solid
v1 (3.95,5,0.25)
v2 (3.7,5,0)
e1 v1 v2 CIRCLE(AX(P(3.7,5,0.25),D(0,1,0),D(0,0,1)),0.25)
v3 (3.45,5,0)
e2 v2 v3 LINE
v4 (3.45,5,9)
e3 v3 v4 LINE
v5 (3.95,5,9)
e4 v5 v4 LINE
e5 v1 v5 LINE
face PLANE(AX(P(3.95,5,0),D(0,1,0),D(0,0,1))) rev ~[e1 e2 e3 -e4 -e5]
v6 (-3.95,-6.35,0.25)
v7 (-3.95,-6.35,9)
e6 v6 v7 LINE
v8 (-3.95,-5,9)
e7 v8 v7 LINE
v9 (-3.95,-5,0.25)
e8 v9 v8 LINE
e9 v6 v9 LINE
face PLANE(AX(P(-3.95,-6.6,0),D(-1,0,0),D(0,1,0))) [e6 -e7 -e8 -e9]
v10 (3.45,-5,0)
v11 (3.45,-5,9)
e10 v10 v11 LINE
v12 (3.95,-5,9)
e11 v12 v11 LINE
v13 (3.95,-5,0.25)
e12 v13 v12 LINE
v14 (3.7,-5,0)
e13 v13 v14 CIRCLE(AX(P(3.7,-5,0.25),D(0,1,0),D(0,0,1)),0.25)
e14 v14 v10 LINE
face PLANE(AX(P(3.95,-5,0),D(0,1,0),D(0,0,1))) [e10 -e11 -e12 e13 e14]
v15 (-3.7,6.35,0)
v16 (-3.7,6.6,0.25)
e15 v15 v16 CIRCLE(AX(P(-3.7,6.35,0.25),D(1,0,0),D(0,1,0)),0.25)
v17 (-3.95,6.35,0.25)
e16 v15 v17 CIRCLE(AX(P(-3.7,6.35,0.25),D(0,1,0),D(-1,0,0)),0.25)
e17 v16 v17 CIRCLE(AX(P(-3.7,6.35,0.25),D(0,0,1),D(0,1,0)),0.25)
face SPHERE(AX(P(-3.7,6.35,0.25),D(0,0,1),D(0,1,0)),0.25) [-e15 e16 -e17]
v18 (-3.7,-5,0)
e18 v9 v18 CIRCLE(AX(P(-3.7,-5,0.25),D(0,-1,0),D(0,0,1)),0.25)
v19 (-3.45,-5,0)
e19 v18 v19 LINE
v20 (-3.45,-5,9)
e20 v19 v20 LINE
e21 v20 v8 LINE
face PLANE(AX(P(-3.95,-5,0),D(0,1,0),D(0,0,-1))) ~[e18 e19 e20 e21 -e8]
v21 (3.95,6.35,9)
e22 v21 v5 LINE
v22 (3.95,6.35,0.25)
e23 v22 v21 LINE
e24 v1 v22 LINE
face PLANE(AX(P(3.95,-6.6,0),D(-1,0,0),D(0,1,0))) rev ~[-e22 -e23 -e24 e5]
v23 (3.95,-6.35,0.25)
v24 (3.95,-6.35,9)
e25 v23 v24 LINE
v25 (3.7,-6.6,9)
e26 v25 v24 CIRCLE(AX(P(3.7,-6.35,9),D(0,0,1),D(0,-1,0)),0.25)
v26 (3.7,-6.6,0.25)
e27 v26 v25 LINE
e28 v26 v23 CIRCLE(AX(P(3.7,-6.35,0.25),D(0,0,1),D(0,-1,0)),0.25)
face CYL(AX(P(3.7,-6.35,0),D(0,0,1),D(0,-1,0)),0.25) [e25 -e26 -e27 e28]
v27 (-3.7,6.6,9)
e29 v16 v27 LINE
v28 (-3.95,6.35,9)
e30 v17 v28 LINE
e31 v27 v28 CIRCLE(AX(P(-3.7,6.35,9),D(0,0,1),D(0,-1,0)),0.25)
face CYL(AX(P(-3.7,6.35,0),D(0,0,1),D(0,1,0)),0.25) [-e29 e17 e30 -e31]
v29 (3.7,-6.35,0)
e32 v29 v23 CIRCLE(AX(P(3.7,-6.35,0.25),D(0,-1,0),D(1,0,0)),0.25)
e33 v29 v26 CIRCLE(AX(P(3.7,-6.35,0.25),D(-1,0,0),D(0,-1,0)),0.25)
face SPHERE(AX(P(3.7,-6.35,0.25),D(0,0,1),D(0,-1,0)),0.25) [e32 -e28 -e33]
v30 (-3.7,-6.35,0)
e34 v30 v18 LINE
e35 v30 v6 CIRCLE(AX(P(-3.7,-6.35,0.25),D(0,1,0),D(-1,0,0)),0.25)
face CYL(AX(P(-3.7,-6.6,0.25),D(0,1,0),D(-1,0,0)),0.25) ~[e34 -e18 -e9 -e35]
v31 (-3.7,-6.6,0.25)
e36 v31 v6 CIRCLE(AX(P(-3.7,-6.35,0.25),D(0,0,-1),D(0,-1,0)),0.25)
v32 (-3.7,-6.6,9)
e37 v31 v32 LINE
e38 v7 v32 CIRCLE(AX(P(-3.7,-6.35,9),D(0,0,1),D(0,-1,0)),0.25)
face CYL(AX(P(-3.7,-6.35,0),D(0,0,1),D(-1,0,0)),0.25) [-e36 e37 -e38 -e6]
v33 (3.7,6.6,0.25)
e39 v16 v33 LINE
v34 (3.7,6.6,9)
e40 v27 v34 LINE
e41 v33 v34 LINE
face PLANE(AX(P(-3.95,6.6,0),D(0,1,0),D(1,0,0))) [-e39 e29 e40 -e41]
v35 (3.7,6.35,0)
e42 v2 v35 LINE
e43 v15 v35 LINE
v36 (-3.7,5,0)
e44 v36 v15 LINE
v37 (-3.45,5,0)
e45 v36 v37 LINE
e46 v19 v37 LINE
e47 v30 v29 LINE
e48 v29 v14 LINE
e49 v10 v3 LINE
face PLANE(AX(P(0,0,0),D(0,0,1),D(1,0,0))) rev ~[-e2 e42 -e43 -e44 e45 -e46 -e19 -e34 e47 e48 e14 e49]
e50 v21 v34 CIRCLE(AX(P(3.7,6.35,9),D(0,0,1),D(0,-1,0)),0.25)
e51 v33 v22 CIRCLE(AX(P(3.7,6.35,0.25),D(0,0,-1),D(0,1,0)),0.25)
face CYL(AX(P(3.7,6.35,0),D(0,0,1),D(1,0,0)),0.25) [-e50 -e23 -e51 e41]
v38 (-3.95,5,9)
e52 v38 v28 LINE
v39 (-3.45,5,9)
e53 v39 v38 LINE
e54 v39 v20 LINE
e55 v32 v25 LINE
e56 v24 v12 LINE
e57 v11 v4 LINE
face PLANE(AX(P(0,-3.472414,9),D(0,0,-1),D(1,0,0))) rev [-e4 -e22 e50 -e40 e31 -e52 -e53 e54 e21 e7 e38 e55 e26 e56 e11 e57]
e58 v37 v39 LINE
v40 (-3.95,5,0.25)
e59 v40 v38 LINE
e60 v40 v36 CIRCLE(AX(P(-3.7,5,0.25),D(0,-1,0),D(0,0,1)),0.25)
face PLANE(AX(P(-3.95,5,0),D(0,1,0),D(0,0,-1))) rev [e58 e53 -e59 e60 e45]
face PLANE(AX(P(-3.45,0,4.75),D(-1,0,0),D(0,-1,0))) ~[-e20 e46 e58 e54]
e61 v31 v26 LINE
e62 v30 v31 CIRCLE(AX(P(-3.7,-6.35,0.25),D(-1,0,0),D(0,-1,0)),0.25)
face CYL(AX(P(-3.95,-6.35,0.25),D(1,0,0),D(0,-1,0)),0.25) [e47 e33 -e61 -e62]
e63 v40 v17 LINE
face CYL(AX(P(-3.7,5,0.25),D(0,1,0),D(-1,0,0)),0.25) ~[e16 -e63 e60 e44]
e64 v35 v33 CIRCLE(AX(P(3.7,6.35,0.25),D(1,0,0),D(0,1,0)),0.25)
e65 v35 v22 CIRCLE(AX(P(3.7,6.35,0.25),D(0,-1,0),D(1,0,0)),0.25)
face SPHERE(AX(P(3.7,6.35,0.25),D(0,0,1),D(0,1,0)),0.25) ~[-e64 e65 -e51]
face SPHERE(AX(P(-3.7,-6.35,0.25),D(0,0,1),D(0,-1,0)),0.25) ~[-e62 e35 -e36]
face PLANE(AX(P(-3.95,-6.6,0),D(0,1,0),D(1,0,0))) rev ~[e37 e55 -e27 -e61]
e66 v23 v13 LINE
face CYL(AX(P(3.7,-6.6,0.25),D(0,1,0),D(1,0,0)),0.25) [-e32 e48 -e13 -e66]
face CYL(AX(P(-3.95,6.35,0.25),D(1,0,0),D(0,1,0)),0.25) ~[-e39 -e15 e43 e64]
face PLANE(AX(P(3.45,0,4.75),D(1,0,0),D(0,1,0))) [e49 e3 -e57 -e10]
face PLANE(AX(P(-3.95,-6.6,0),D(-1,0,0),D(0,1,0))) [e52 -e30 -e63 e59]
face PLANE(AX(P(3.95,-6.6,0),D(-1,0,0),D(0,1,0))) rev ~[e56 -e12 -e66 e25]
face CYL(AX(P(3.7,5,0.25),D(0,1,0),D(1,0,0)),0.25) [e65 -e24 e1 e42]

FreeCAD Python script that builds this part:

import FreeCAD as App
import Part
import Sketcher

V = App.Vector
Q = App.Units.Quantity


def edges_at(feature, points):
    """Names of the edges that pass closest to the given points."""
    edges = feature.Shape.Edges
    near = lambda p: min(range(len(edges)), key=lambda i: edges[i].distToShape(Part.Vertex(*p))[0])
    return sorted({f"Edge{near(p) + 1}" for p in points})

doc = App.newDocument("Part")
body = doc.addObject("PartDesign::Body", "Body")

# Sketch on XY plane
sketch1 = body.newObject("Sketcher::SketchObject", "Sketch")
sketch1.AttachmentSupport = (doc.getObject("XY_Plane"), [""])
sketch1.MapMode = "FlatFace"
sketch1.addGeometry([
    Part.LineSegment(V(-4, 7, 0), V(-4, -7, 0)),
    Part.LineSegment(V(-4, -7, 0), V(4, -7, 0)),
    Part.LineSegment(V(4, -7, 0), V(4, 7, 0)),
    Part.LineSegment(V(4, 7, 0), V(-4, 7, 0)),
], False)
sketch1.addConstraint([
    Sketcher.Constraint("Coincident", 0, 2, 1, 1),
    Sketcher.Constraint("Coincident", 1, 2, 2, 1),
    Sketcher.Constraint("Coincident", 2, 2, 3, 1),
    Sketcher.Constraint("Coincident", 3, 2, 0, 1),
    Sketcher.Constraint("Vertical", 0),
    Sketcher.Constraint("Horizontal", 1),
    Sketcher.Constraint("Vertical", 2),
    Sketcher.Constraint("Horizontal", 3),
    Sketcher.Constraint("Symmetric", 0, 2, 2, 2, -1, 1),
    Sketcher.Constraint("DistanceX", 1, 1, 1, 2, Q("7.9 mm")),
    Sketcher.Constraint("DistanceY", 0, 2, 0, 1, Q("13.2 mm")),
])
pad1 = body.newObject("PartDesign::Pad", "Pad")
pad1.Profile = sketch1
pad1.Length = 9.5

# Sketch on YZ plane
sketch2 = body.newObject("Sketcher::SketchObject", "Sketch001")
sketch2.AttachmentSupport = (doc.getObject("YZ_Plane"), [""])
sketch2.MapMode = "FlatFace"
sketch2.AttachmentOffset = App.Placement(V(0, 0, 3.95), App.Rotation())
sketch2.addGeometry([
    Part.LineSegment(V(-5, 10, 0), V(-5, 0, 0)),
    Part.LineSegment(V(-5, 0, 0), V(5, 0, 0)),
    Part.LineSegment(V(5, 0, 0), V(5, 10, 0)),
    Part.LineSegment(V(5, 10, 0), V(-5, 10, 0)),
], False)
sketch2.addConstraint([
    Sketcher.Constraint("Coincident", 0, 2, 1, 1),
    Sketcher.Constraint("Coincident", 1, 2, 2, 1),
    Sketcher.Constraint("Coincident", 2, 2, 3, 1),
    Sketcher.Constraint("Coincident", 3, 2, 0, 1),
    Sketcher.Constraint("Vertical", 0),
    Sketcher.Constraint("Horizontal", 1),
    Sketcher.Constraint("Vertical", 2),
    Sketcher.Constraint("Horizontal", 3),
    Sketcher.Constraint("Symmetric", 0, 2, 1, 2, -1, 1),
    Sketcher.Constraint("DistanceX", 1, 1, 1, 2, Q("10 mm")),
    Sketcher.Constraint("DistanceY", 0, 2, 0, 1, Q("9.5 mm")),
])
pocket1 = body.newObject("PartDesign::Pocket", "Pocket")
pocket1.Profile = sketch2
pocket1.Length = 0.5
doc.recompute()

mirrored = body.newObject("PartDesign::Mirrored", "Mirrored")
mirrored.Originals = [pocket1]
mirrored.MirrorPlane = (doc.getObject("YZ_Plane"), [""])
body.Tip = mirrored

# Sketch on XY plane
sketch3 = body.newObject("Sketcher::SketchObject", "Sketch002")
sketch3.AttachmentSupport = (doc.getObject("XY_Plane"), [""])
sketch3.MapMode = "FlatFace"
sketch3.AttachmentOffset = App.Placement(V(0, 0, 9.5), App.Rotation())
sketch3.addGeometry([
    Part.LineSegment(V(4, 6.6, 0), V(-4, 6.6, 0)),  # 0
    Part.LineSegment(V(-4, 6.6, 0), V(-4, 5, 0)),  # 1
    Part.LineSegment(V(-4, 5, 0), V(-3.5, 5, 0)),  # 2
    Part.LineSegment(V(-3.5, 5, 0), V(-3.5, 0, 0)),  # 3
    Part.LineSegment(V(-3.5, 0, 0), V(3.5, 0, 0)),  # 4
    Part.LineSegment(V(3.5, 0, 0), V(3.5, 5, 0)),  # 5
    Part.LineSegment(V(3.5, 5, 0), V(4, 5, 0)),  # 6
    Part.LineSegment(V(4, 5, 0), V(4, 6.6, 0)),  # 7
], False)
sketch3.addConstraint([
    Sketcher.Constraint("Coincident", 0, 2, 1, 1),
    Sketcher.Constraint("Coincident", 1, 2, 2, 1),
    Sketcher.Constraint("Coincident", 2, 2, 3, 1),
    Sketcher.Constraint("Coincident", 3, 2, 4, 1),
    Sketcher.Constraint("Coincident", 4, 2, 5, 1),
    Sketcher.Constraint("Coincident", 5, 2, 6, 1),
    Sketcher.Constraint("Coincident", 6, 2, 7, 1),
    Sketcher.Constraint("Coincident", 7, 2, 0, 1),
    Sketcher.Constraint("Horizontal", 0),
    Sketcher.Constraint("Vertical", 1),
    Sketcher.Constraint("Horizontal", 2),
    Sketcher.Constraint("Vertical", 3),
    Sketcher.Constraint("Horizontal", 4),
    Sketcher.Constraint("Vertical", 5),
    Sketcher.Constraint("Horizontal", 6),
    Sketcher.Constraint("Vertical", 7),
    Sketcher.Constraint("Symmetric", 3, 2, 4, 2, -1, 1),
    Sketcher.Constraint("Symmetric", 1, 2, 6, 2, -2),
    Sketcher.Constraint("DistanceY", 3, 2, 3, 1, Q("5 mm")),
    Sketcher.Constraint("DistanceX", 0, 2, 0, 1, Q("7.9 mm")),
    Sketcher.Constraint("DistanceX", 2, 1, 2, 2, Q("0.5 mm")),
    Sketcher.Constraint("DistanceY", 1, 2, 1, 1, Q("1.6 mm")),
])
pocket2 = body.newObject("PartDesign::Pocket", "Pocket001")
pocket2.Profile = sketch3
pocket2.Length = 0.5
doc.recompute()

mirrored2 = body.newObject("PartDesign::Mirrored", "Mirrored001")
mirrored2.Originals = [pocket2]
mirrored2.MirrorPlane = (doc.getObject("XZ_Plane"), [""])
body.Tip = mirrored2
doc.recompute()

fillet = body.newObject("PartDesign::Fillet", "Fillet")
fillet.Base = (mirrored2, edges_at(mirrored2, [
    (3.95, -6.6, 4.5),
    (-3.95, -6.6, 4.5),
    (-3.95, 6.6, 4.5),
    (3.95, 6.6, 4.5),
    (0, 6.6, 0),
    (0, -6.6, 0),
    (3.95, -5.8, 0),
    (3.95, 5.8, 0),
    (-3.95, -5.8, 0),
    (-3.95, 5.8, 0),
]))
fillet.Radius = 0.25

doc.recompute()
